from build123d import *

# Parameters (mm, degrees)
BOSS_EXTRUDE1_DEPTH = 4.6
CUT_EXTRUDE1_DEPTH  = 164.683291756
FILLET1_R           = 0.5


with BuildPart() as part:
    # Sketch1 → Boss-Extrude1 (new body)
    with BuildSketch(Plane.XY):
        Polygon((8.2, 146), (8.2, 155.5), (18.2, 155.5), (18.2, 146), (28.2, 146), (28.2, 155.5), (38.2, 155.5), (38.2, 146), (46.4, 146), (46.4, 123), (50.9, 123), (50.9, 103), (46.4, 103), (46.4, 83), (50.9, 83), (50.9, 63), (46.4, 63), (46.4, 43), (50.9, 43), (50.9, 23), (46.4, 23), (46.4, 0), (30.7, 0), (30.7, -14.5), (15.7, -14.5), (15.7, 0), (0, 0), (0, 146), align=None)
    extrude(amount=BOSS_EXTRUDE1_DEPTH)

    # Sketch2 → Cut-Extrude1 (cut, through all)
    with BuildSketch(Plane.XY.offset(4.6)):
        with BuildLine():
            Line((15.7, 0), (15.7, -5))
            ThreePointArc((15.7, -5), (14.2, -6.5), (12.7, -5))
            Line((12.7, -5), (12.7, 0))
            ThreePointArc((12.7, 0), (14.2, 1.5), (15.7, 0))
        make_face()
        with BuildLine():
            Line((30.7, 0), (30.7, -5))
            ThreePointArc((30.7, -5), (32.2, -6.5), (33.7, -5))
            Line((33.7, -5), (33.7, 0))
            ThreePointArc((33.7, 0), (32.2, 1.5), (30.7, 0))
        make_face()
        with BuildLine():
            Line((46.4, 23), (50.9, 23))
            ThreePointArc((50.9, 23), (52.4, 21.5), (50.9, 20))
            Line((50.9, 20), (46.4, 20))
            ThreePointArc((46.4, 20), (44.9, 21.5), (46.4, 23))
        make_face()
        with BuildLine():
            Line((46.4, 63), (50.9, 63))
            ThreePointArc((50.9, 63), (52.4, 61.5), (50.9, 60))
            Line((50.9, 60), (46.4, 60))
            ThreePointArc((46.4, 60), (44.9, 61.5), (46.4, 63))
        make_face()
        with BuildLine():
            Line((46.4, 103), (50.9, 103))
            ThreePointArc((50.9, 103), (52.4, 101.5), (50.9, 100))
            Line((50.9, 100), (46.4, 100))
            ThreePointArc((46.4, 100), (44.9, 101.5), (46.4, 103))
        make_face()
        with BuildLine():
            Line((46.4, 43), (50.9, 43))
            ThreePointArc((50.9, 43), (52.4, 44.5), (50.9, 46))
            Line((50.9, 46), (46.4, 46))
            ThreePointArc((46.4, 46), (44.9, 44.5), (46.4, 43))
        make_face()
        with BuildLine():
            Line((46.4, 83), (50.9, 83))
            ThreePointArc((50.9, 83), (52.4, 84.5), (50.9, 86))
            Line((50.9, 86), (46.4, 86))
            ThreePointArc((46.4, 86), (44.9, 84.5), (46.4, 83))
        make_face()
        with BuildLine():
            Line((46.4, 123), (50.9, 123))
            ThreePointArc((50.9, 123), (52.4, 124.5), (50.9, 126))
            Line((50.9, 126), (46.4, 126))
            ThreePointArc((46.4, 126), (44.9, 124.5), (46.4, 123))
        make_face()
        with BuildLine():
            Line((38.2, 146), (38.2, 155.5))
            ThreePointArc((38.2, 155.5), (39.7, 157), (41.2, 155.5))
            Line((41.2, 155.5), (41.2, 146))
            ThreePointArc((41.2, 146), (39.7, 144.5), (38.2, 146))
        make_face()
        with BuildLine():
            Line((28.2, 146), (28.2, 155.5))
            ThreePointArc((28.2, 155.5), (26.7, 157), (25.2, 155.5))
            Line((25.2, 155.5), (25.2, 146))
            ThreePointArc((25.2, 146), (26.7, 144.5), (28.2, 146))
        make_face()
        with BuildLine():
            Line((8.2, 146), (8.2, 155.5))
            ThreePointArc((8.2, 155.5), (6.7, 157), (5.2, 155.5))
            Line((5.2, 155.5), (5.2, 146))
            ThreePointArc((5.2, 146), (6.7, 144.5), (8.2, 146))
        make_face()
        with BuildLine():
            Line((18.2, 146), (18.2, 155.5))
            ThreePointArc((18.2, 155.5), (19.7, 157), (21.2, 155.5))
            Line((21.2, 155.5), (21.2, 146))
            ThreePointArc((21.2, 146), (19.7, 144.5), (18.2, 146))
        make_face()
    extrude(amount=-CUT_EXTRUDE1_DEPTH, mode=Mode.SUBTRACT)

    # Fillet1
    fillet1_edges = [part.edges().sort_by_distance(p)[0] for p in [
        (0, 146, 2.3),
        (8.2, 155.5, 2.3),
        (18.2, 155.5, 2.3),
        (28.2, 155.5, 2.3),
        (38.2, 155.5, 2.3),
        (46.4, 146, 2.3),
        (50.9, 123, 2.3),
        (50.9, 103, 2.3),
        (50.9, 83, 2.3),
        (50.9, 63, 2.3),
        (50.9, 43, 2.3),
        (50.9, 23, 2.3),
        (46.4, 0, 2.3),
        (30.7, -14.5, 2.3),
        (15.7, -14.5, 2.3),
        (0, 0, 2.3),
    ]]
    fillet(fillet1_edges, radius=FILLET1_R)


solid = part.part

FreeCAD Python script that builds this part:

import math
import FreeCAD as App
import Part
import Sketcher
Q = App.Units.Quantity


def edges_at(feature, points):
    """Names of the edges that pass closest to the given points."""
    edges = feature.Shape.Edges
    near = lambda p: min(range(len(edges)), key=lambda i: edges[i].distToShape(Part.Vertex(*p))[0])
    return sorted({f"Edge{near(p) + 1}" for p in points})

doc = App.newDocument("Part")
body = doc.addObject("PartDesign::Body", "Body")

sketch1 = body.newObject("Sketcher::SketchObject", "Sketch")
sketch1.AttachmentSupport = (doc.getObject("XY_Plane"), [""])
sketch1.MapMode = "FlatFace"
sketch1.addGeometry([
    Part.LineSegment(App.Vector(8.2, 155.5, 0), App.Vector(8.2, 146, 0)),
    Part.LineSegment(App.Vector(8.2, 146, 0), App.Vector(0, 146, 0)),
    Part.LineSegment(App.Vector(0, 146, 0), App.Vector(0, 0, 0)),
    Part.LineSegment(App.Vector(0, 0, 0), App.Vector(15.7, 0, 0)),
    Part.LineSegment(App.Vector(15.7, 0, 0), App.Vector(15.7, -14.5, 0)),
    Part.LineSegment(App.Vector(15.7, -14.5, 0), App.Vector(30.7, -14.5, 0)),
    Part.LineSegment(App.Vector(30.7, -14.5, 0), App.Vector(30.7, 0, 0)),
    Part.LineSegment(App.Vector(30.7, 0, 0), App.Vector(46.4, 0, 0)),
    Part.LineSegment(App.Vector(46.4, 0, 0), App.Vector(46.4, 23, 0)),
    Part.LineSegment(App.Vector(46.4, 23, 0), App.Vector(50.9, 23, 0)),
    Part.LineSegment(App.Vector(50.9, 23, 0), App.Vector(50.9, 43, 0)),
    Part.LineSegment(App.Vector(50.9, 43, 0), App.Vector(46.4, 43, 0)),
    Part.LineSegment(App.Vector(46.4, 43, 0), App.Vector(46.4, 63, 0)),
    Part.LineSegment(App.Vector(46.4, 63, 0), App.Vector(50.9, 63, 0)),
    Part.LineSegment(App.Vector(50.9, 63, 0), App.Vector(50.9, 83, 0)),
    Part.LineSegment(App.Vector(50.9, 83, 0), App.Vector(46.4, 83, 0)),
    Part.LineSegment(App.Vector(46.4, 83, 0), App.Vector(46.4, 103, 0)),
    Part.LineSegment(App.Vector(46.4, 103, 0), App.Vector(50.9, 103, 0)),
    Part.LineSegment(App.Vector(50.9, 103, 0), App.Vector(50.9, 123, 0)),
    Part.LineSegment(App.Vector(50.9, 123, 0), App.Vector(46.4, 123, 0)),
    Part.LineSegment(App.Vector(46.4, 123, 0), App.Vector(46.4, 146, 0)),
    Part.LineSegment(App.Vector(46.4, 146, 0), App.Vector(38.2, 146, 0)),
    Part.LineSegment(App.Vector(38.2, 146, 0), App.Vector(38.2, 155.5, 0)),
    Part.LineSegment(App.Vector(38.2, 155.5, 0), App.Vector(28.2, 155.5, 0)),
    Part.LineSegment(App.Vector(28.2, 155.5, 0), App.Vector(28.2, 146, 0)),
    Part.LineSegment(App.Vector(28.2, 146, 0), App.Vector(18.2, 146, 0)),
    Part.LineSegment(App.Vector(18.2, 146, 0), App.Vector(18.2, 155.5, 0)),
    Part.LineSegment(App.Vector(18.2, 155.5, 0), App.Vector(8.2, 155.5, 0)),
], False)
sketch1.addConstraint([
    Sketcher.Constraint("Coincident", 0, 2, 1, 1),
    Sketcher.Constraint("Coincident", 1, 2, 2, 1),
    Sketcher.Constraint("Coincident", 2, 2, 3, 1),
    Sketcher.Constraint("Coincident", 3, 2, 4, 1),
    Sketcher.Constraint("Coincident", 4, 2, 5, 1),
    Sketcher.Constraint("Coincident", 5, 2, 6, 1),
    Sketcher.Constraint("Coincident", 6, 2, 7, 1),
    Sketcher.Constraint("Coincident", 7, 2, 8, 1),
    Sketcher.Constraint("Coincident", 8, 2, 9, 1),
    Sketcher.Constraint("Coincident", 9, 2, 10, 1),
    Sketcher.Constraint("Coincident", 10, 2, 11, 1),
    Sketcher.Constraint("Coincident", 11, 2, 12, 1),
    Sketcher.Constraint("Coincident", 12, 2, 13, 1),
    Sketcher.Constraint("Coincident", 13, 2, 14, 1),
    Sketcher.Constraint("Coincident", 14, 2, 15, 1),
    Sketcher.Constraint("Coincident", 15, 2, 16, 1),
    Sketcher.Constraint("Coincident", 16, 2, 17, 1),
    Sketcher.Constraint("Coincident", 17, 2, 18, 1),
    Sketcher.Constraint("Coincident", 18, 2, 19, 1),
    Sketcher.Constraint("Coincident", 19, 2, 20, 1),
    Sketcher.Constraint("Coincident", 20, 2, 21, 1),
    Sketcher.Constraint("Coincident", 21, 2, 22, 1),
    Sketcher.Constraint("Coincident", 22, 2, 23, 1),
    Sketcher.Constraint("Coincident", 23, 2, 24, 1),
    Sketcher.Constraint("Coincident", 24, 2, 25, 1),
    Sketcher.Constraint("Coincident", 25, 2, 26, 1),
    Sketcher.Constraint("Coincident", 26, 2, 27, 1),
    Sketcher.Constraint("Coincident", 27, 2, 0, 1),
    Sketcher.Constraint("Vertical", 0),
    Sketcher.Constraint("Horizontal", 1),
    Sketcher.Constraint("Vertical", 2),
    Sketcher.Constraint("Horizontal", 3),
    Sketcher.Constraint("Vertical", 4),
    Sketcher.Constraint("Horizontal", 5),
    Sketcher.Constraint("Vertical", 6),
    Sketcher.Constraint("Horizontal", 7),
    Sketcher.Constraint("Vertical", 8),
    Sketcher.Constraint("Horizontal", 9),
    Sketcher.Constraint("Vertical", 10),
    Sketcher.Constraint("Horizontal", 11),
    Sketcher.Constraint("Vertical", 12),
    Sketcher.Constraint("Horizontal", 13),
    Sketcher.Constraint("Vertical", 14),
    Sketcher.Constraint("Horizontal", 15),
    Sketcher.Constraint("Vertical", 16),
    Sketcher.Constraint("Horizontal", 17),
    Sketcher.Constraint("Vertical", 18),
    Sketcher.Constraint("Horizontal", 19),
    Sketcher.Constraint("Vertical", 20),
    Sketcher.Constraint("Horizontal", 21),
    Sketcher.Constraint("Vertical", 22),
    Sketcher.Constraint("Horizontal", 23),
    Sketcher.Constraint("Vertical", 24),
    Sketcher.Constraint("Horizontal", 25),
    Sketcher.Constraint("Vertical", 26),
    Sketcher.Constraint("Horizontal", 27),
    Sketcher.Constraint("Coincident", 2, 2, -1, 1),
    Sketcher.Constraint("PointOnObject", 6, 2, -1),
    Sketcher.Constraint("Horizontal", 1, 2, 20, 2),
    Sketcher.Constraint("Horizontal", 21, 2, 24, 2),
    Sketcher.Constraint("Horizontal", 23, 2, 26, 2),
    Sketcher.Constraint("Vertical", 8, 2, 11, 2),
    Sketcher.Constraint("Vertical", 10, 2, 13, 2),
    Sketcher.Constraint("Vertical", 12, 2, 15, 2),
    Sketcher.Constraint("Vertical", 14, 2, 17, 2),
    Sketcher.Constraint("Vertical", 16, 2, 19, 2),
    Sketcher.Constraint("Equal", 3, 7),
    Sketcher.Constraint("Equal", 1, 21),
    Sketcher.Constraint("Equal", 23, 25),
    Sketcher.Constraint("Equal", 25, 27),
    Sketcher.Constraint("Equal", 10, 12),
    Sketcher.Constraint("Equal", 12, 14),
    Sketcher.Constraint("Equal", 14, 16),
    Sketcher.Constraint("Equal", 16, 18),
    Sketcher.Constraint("Equal", 8, 20),
    Sketcher.Constraint("DistanceX", 5, 1, 5, 2, Q("15 mm")),
    Sketcher.Constraint("DistanceX", 23, 2, 23, 1, Q("10 mm")),
    Sketcher.Constraint("DistanceY", 2, 2, 2, 1, Q("146 mm")),
    Sketcher.Constraint("DistanceY", 8, 1, 8, 2, Q("23 mm")),
    Sketcher.Constraint("DistanceX", 1, 2, 1, 1, Q("8.2 mm")),
    Sketcher.Constraint("DistanceX", 9, 1, 9, 2, Q("4.5 mm")),
    Sketcher.Constraint("DistanceY", 0, 2, 0, 1, Q("9.5 mm")),
    Sketcher.Constraint("DistanceY", 4, 2, 4, 1, Q("14.5 mm")),
])
pad1 = body.newObject("PartDesign::Pad", "Pad")
pad1.Profile = sketch1
pad1.Length = 4.6

sketch2 = body.newObject("Sketcher::SketchObject", "Sketch001")
sketch2.AttachmentSupport = (doc.getObject("XY_Plane"), [""])
sketch2.MapMode = "FlatFace"
sketch2.AttachmentOffset = App.Placement(App.Vector(0, 0, 4.6), App.Rotation())
sketch2.addGeometry([
    Part.LineSegment(App.Vector(15.7, -5, 0), App.Vector(15.7, 0, 0)),
    Part.ArcOfCircle(Part.Circle(App.Vector(14.2, 0, 0), App.Vector(0, 0, 1), 1.5), math.radians(0), math.radians(180)),
    Part.LineSegment(App.Vector(12.7, 0, 0), App.Vector(12.7, -5, 0)),
    Part.ArcOfCircle(Part.Circle(App.Vector(14.2, -5, 0), App.Vector(0, 0, 1), 1.5), math.radians(180), math.radians(360)),
    Part.LineSegment(App.Vector(30.7, 0, 0), App.Vector(30.7, -5, 0)),
    Part.ArcOfCircle(Part.Circle(App.Vector(32.2, -5, 0), App.Vector(0, 0, 1), 1.5), math.radians(180), math.radians(360)),
    Part.LineSegment(App.Vector(33.7, -5, 0), App.Vector(33.7, 0, 0)),
    Part.ArcOfCircle(Part.Circle(App.Vector(32.2, 0, 0), App.Vector(0, 0, 1), 1.5), math.radians(0), math.radians(180)),
    Part.LineSegment(App.Vector(50.9, 23, 0), App.Vector(46.4, 23, 0)),
    Part.ArcOfCircle(Part.Circle(App.Vector(46.4, 21.5, 0), App.Vector(0, 0, 1), 1.5), math.radians(90), math.radians(270)),
    Part.LineSegment(App.Vector(46.4, 20, 0), App.Vector(50.9, 20, 0)),
    Part.ArcOfCircle(Part.Circle(App.Vector(50.9, 21.5, 0), App.Vector(0, 0, 1), 1.5), math.radians(-90), math.radians(90)),
    Part.LineSegment(App.Vector(50.9, 63, 0), App.Vector(46.4, 63, 0)),
    Part.ArcOfCircle(Part.Circle(App.Vector(46.4, 61.5, 0), App.Vector(0, 0, 1), 1.5), math.radians(90), math.radians(270)),
    Part.LineSegment(App.Vector(46.4, 60, 0), App.Vector(50.9, 60, 0)),
    Part.ArcOfCircle(Part.Circle(App.Vector(50.9, 61.5, 0), App.Vector(0, 0, 1), 1.5), math.radians(-90), math.radians(90)),
    Part.LineSegment(App.Vector(50.9, 103, 0), App.Vector(46.4, 103, 0)),
    Part.ArcOfCircle(Part.Circle(App.Vector(46.4, 101.5, 0), App.Vector(0, 0, 1), 1.5), math.radians(90), math.radians(270)),
    Part.LineSegment(App.Vector(46.4, 100, 0), App.Vector(50.9, 100, 0)),
    Part.ArcOfCircle(Part.Circle(App.Vector(50.9, 101.5, 0), App.Vector(0, 0, 1), 1.5), math.radians(-90), math.radians(90)),
    Part.LineSegment(App.Vector(46.4, 43, 0), App.Vector(50.9, 43, 0)),
    Part.ArcOfCircle(Part.Circle(App.Vector(50.9, 44.5, 0), App.Vector(0, 0, 1), 1.5), math.radians(-90), math.radians(90)),
    Part.LineSegment(App.Vector(50.9, 46, 0), App.Vector(46.4, 46, 0)),
    Part.ArcOfCircle(Part.Circle(App.Vector(46.4, 44.5, 0), App.Vector(0, 0, 1), 1.5), math.radians(90), math.radians(270)),
    Part.LineSegment(App.Vector(46.4, 83, 0), App.Vector(50.9, 83, 0)),
    Part.ArcOfCircle(Part.Circle(App.Vector(50.9, 84.5, 0), App.Vector(0, 0, 1), 1.5), math.radians(-90), math.radians(90)),
    Part.LineSegment(App.Vector(50.9, 86, 0), App.Vector(46.4, 86, 0)),
    Part.ArcOfCircle(Part.Circle(App.Vector(46.4, 84.5, 0), App.Vector(0, 0, 1), 1.5), math.radians(90), math.radians(270)),
    Part.LineSegment(App.Vector(46.4, 123, 0), App.Vector(50.9, 123, 0)),
    Part.ArcOfCircle(Part.Circle(App.Vector(50.9, 124.5, 0), App.Vector(0, 0, 1), 1.5), math.radians(-90), math.radians(90)),
    Part.LineSegment(App.Vector(50.9, 126, 0), App.Vector(46.4, 126, 0)),
    Part.ArcOfCircle(Part.Circle(App.Vector(46.4, 124.5, 0), App.Vector(0, 0, 1), 1.5), math.radians(90), math.radians(270)),
    Part.LineSegment(App.Vector(38.2, 155.5, 0), App.Vector(38.2, 146, 0)),
    Part.ArcOfCircle(Part.Circle(App.Vector(39.7, 146, 0), App.Vector(0, 0, 1), 1.5), math.radians(180), math.radians(360)),
    Part.LineSegment(App.Vector(41.2, 146, 0), App.Vector(41.2, 155.5, 0)),
    Part.ArcOfCircle(Part.Circle(App.Vector(39.7, 155.5, 0), App.Vector(0, 0, 1), 1.5), math.radians(0), math.radians(180)),
    Part.LineSegment(App.Vector(28.2, 146, 0), App.Vector(28.2, 155.5, 0)),
    Part.ArcOfCircle(Part.Circle(App.Vector(26.7, 155.5, 0), App.Vector(0, 0, 1), 1.5), math.radians(0), math.radians(180)),
    Part.LineSegment(App.Vector(25.2, 155.5, 0), App.Vector(25.2, 146, 0)),
    Part.ArcOfCircle(Part.Circle(App.Vector(26.7, 146, 0), App.Vector(0, 0, 1), 1.5), math.radians(180), math.radians(360)),
    Part.LineSegment(App.Vector(8.2, 146, 0), App.Vector(8.2, 155.5, 0)),
    Part.ArcOfCircle(Part.Circle(App.Vector(6.7, 155.5, 0), App.Vector(0, 0, 1), 1.5), math.radians(0), math.radians(180)),
    Part.LineSegment(App.Vector(5.2, 155.5, 0), App.Vector(5.2, 146, 0)),
    Part.ArcOfCircle(Part.Circle(App.Vector(6.7, 146, 0), App.Vector(0, 0, 1), 1.5), math.radians(180), math.radians(360)),
    Part.LineSegment(App.Vector(18.2, 155.5, 0), App.Vector(18.2, 146, 0)),
    Part.ArcOfCircle(Part.Circle(App.Vector(19.7, 146, 0), App.Vector(0, 0, 1), 1.5), math.radians(180), math.radians(360)),
    Part.LineSegment(App.Vector(21.2, 146, 0), App.Vector(21.2, 155.5, 0)),
    Part.ArcOfCircle(Part.Circle(App.Vector(19.7, 155.5, 0), App.Vector(0, 0, 1), 1.5), math.radians(0), math.radians(180)),
], False)
sketch2.addConstraint([
    Sketcher.Constraint("Tangent", 0, 2, 1, 1),
    Sketcher.Constraint("Tangent", 1, 2, 2, 1),
    Sketcher.Constraint("Tangent", 2, 2, 3, 1),
    Sketcher.Constraint("Tangent", 3, 2, 0, 1),
    Sketcher.Constraint("Tangent", 4, 2, 5, 1),
    Sketcher.Constraint("Tangent", 5, 2, 6, 1),
    Sketcher.Constraint("Tangent", 6, 2, 7, 1),
    Sketcher.Constraint("Tangent", 7, 2, 4, 1),
    Sketcher.Constraint("Tangent", 8, 2, 9, 1),
    Sketcher.Constraint("Tangent", 9, 2, 10, 1),
    Sketcher.Constraint("Tangent", 10, 2, 11, 1),
    Sketcher.Constraint("Tangent", 11, 2, 8, 1),
    Sketcher.Constraint("Tangent", 12, 2, 13, 1),
    Sketcher.Constraint("Tangent", 13, 2, 14, 1),
    Sketcher.Constraint("Tangent", 14, 2, 15, 1),
    Sketcher.Constraint("Tangent", 15, 2, 12, 1),
    Sketcher.Constraint("Tangent", 16, 2, 17, 1),
    Sketcher.Constraint("Tangent", 17, 2, 18, 1),
    Sketcher.Constraint("Tangent", 18, 2, 19, 1),
    Sketcher.Constraint("Tangent", 19, 2, 16, 1),
    Sketcher.Constraint("Tangent", 20, 2, 21, 1),
    Sketcher.Constraint("Tangent", 21, 2, 22, 1),
    Sketcher.Constraint("Tangent", 22, 2, 23, 1),
    Sketcher.Constraint("Tangent", 23, 2, 20, 1),
    Sketcher.Constraint("Tangent", 24, 2, 25, 1),
    Sketcher.Constraint("Tangent", 25, 2, 26, 1),
    Sketcher.Constraint("Tangent", 26, 2, 27, 1),
    Sketcher.Constraint("Tangent", 27, 2, 24, 1),
    Sketcher.Constraint("Tangent", 28, 2, 29, 1),
    Sketcher.Constraint("Tangent", 29, 2, 30, 1),
    Sketcher.Constraint("Tangent", 30, 2, 31, 1),
    Sketcher.Constraint("Tangent", 31, 2, 28, 1),
    Sketcher.Constraint("Tangent", 32, 2, 33, 1),
    Sketcher.Constraint("Tangent", 33, 2, 34, 1),
    Sketcher.Constraint("Tangent", 34, 2, 35, 1),
    Sketcher.Constraint("Tangent", 35, 2, 32, 1),
    Sketcher.Constraint("Tangent", 36, 2, 37, 1),
    Sketcher.Constraint("Tangent", 37, 2, 38, 1),
    Sketcher.Constraint("Tangent", 38, 2, 39, 1),
    Sketcher.Constraint("Tangent", 39, 2, 36, 1),
    Sketcher.Constraint("Tangent", 40, 2, 41, 1),
    Sketcher.Constraint("Tangent", 41, 2, 42, 1),
    Sketcher.Constraint("Tangent", 42, 2, 43, 1),
    Sketcher.Constraint("Tangent", 43, 2, 40, 1),
    Sketcher.Constraint("Tangent", 44, 2, 45, 1),
    Sketcher.Constraint("Tangent", 45, 2, 46, 1),
    Sketcher.Constraint("Tangent", 46, 2, 47, 1),
    Sketcher.Constraint("Tangent", 47, 2, 44, 1),
    Sketcher.Constraint("Vertical", 0),
    Sketcher.Constraint("Vertical", 2),
    Sketcher.Constraint("Vertical", 4),
    Sketcher.Constraint("Vertical", 6),
    Sketcher.Constraint("Horizontal", 8),
    Sketcher.Constraint("Horizontal", 10),
    Sketcher.Constraint("Horizontal", 12),
    Sketcher.Constraint("Horizontal", 14),
    Sketcher.Constraint("Horizontal", 16),
    Sketcher.Constraint("Horizontal", 18),
    Sketcher.Constraint("Horizontal", 20),
    Sketcher.Constraint("Horizontal", 22),
    Sketcher.Constraint("Horizontal", 24),
    Sketcher.Constraint("Horizontal", 26),
    Sketcher.Constraint("Horizontal", 28),
    Sketcher.Constraint("Horizontal", 30),
    Sketcher.Constraint("Vertical", 32),
    Sketcher.Constraint("Vertical", 34),
    Sketcher.Constraint("Vertical", 36),
    Sketcher.Constraint("Vertical", 38),
    Sketcher.Constraint("Vertical", 40),
    Sketcher.Constraint("Vertical", 42),
    Sketcher.Constraint("Vertical", 44),
    Sketcher.Constraint("Vertical", 46),
    Sketcher.Constraint("Equal", 3, 5),
    Sketcher.Constraint("Equal", 7, 9),
    Sketcher.Constraint("Equal", 11, 13),
    Sketcher.Constraint("Equal", 15, 17),
    Sketcher.Constraint("Equal", 19, 21),
    Sketcher.Constraint("Equal", 23, 25),
    Sketcher.Constraint("Equal", 27, 29),
    Sketcher.Constraint("Equal", 31, 33),
    Sketcher.Constraint("Equal", 35, 37),
    Sketcher.Constraint("Equal", 39, 41),
    Sketcher.Constraint("Equal", 43, 45),
    Sketcher.Constraint("PointOnObject", 1, 3, -1),
    Sketcher.Constraint("PointOnObject", 7, 3, -1),
    Sketcher.Constraint("Horizontal", 3, 3, 5, 3),
    Sketcher.Constraint("Horizontal", 35, 3, 37, 3),
    Sketcher.Constraint("Horizontal", 33, 3, 39, 3),
    Sketcher.Constraint("Horizontal", 37, 3, 41, 3),
    Sketcher.Constraint("Horizontal", 39, 3, 43, 3),
    Sketcher.Constraint("Horizontal", 43, 3, 45, 3),
    Sketcher.Constraint("Horizontal", 41, 3, 47, 3),
    Sketcher.Constraint("Vertical", 9, 3, 13, 3),
    Sketcher.Constraint("Vertical", 11, 3, 15, 3),
    Sketcher.Constraint("Vertical", 13, 3, 17, 3),
    Sketcher.Constraint("Vertical", 15, 3, 19, 3),
    Sketcher.Constraint("Vertical", 19, 3, 21, 3),
    Sketcher.Constraint("Vertical", 17, 3, 23, 3),
    Sketcher.Constraint("Vertical", 21, 3, 25, 3),
    Sketcher.Constraint("Vertical", 23, 3, 27, 3),
    Sketcher.Constraint("Vertical", 25, 3, 29, 3),
    Sketcher.Constraint("Vertical", 27, 3, 31, 3),
    Sketcher.Constraint("Radius", 1, Q("1.5 mm")),
    Sketcher.Constraint("DistanceY", 0, 1, 0, 2, Q("5 mm")),
    Sketcher.Constraint("DistanceX", 8, 2, 8, 1, Q("4.5 mm")),
    Sketcher.Constraint("DistanceY", 32, 2, 32, 1, Q("9.5 mm")),
    Sketcher.Constraint("DistanceY", -1, 1, 33, 3, Q("146 mm")),
    Sketcher.Constraint("DistanceY", -1, 1, 8, 2, Q("23 mm")),
    Sketcher.Constraint("DistanceY", -1, 1, 12, 2, Q("63 mm")),
    Sketcher.Constraint("DistanceY", -1, 1, 16, 2, Q("103 mm")),
    Sketcher.Constraint("DistanceY", -1, 1, 20, 2, Q("43 mm")),
    Sketcher.Constraint("DistanceY", -1, 1, 24, 2, Q("83 mm")),
    Sketcher.Constraint("DistanceY", -1, 1, 28, 2, Q("123 mm")),
    Sketcher.Constraint("DistanceX", -1, 1, 1, 3, Q("14.2 mm")),
    Sketcher.Constraint("DistanceX", -1, 1, 5, 3, Q("32.2 mm")),
    Sketcher.Constraint("DistanceX", -1, 1, 9, 3, Q("46.4 mm")),
    Sketcher.Constraint("DistanceX", -1, 1, 33, 3, Q("39.7 mm")),
    Sketcher.Constraint("DistanceX", -1, 1, 37, 3, Q("26.7 mm")),
    Sketcher.Constraint("DistanceX", -1, 1, 41, 3, Q("6.7 mm")),
    Sketcher.Constraint("DistanceX", -1, 1, 45, 3, Q("19.7 mm")),
])
pocket1 = body.newObject("PartDesign::Pocket", "Pocket")
pocket1.Profile = sketch2
pocket1.Type = "ThroughAll"
doc.recompute()

fillet = body.newObject("PartDesign::Fillet", "Fillet")
fillet.Base = (pocket1, edges_at(pocket1, [
    (0, 146, 2.3),
    (8.2, 155.5, 2.3),
    (18.2, 155.5, 2.3),
    (28.2, 155.5, 2.3),
    (38.2, 155.5, 2.3),
    (46.4, 146, 2.3),
    (50.9, 123, 2.3),
    (50.9, 103, 2.3),
    (50.9, 83, 2.3),
    (50.9, 63, 2.3),
    (50.9, 43, 2.3),
    (50.9, 23, 2.3),
    (46.4, 0, 2.3),
    (30.7, -14.5, 2.3),
    (15.7, -14.5, 2.3),
    (0, 0, 2.3),
]))
fillet.Radius = 0.5

doc.recompute()
